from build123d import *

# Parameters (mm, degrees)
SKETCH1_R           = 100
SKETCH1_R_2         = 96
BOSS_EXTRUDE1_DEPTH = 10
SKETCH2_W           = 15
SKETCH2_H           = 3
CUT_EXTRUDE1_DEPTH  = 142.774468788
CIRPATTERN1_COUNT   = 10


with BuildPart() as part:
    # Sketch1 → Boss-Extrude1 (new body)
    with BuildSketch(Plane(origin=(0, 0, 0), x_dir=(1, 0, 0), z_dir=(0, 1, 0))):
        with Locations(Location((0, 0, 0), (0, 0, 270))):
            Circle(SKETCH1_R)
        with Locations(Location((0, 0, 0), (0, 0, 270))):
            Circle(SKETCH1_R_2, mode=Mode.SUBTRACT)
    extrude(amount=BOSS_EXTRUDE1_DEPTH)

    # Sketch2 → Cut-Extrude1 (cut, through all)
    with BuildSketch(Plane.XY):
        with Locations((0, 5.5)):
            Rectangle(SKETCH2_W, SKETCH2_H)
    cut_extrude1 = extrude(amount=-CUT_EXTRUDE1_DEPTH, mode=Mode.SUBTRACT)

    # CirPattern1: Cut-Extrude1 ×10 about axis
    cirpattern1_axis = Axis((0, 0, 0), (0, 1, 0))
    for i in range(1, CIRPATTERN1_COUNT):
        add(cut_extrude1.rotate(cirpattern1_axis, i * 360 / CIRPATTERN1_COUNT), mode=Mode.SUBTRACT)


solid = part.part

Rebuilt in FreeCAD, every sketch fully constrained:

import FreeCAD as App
import Part
import Sketcher


def add_polygon(sketch, points):
    """Adds a closed chain of lines whose ends are joined by coincident constraints."""
    first, n = sketch.GeometryCount, len(points)
    for a, b in zip(points, points[1:] + points[:1]):
        sketch.addGeometry(Part.LineSegment(App.Vector(*a, 0), App.Vector(*b, 0)), False)
    for i in range(n):
        sketch.addConstraint(Sketcher.Constraint("Coincident", first + i, 2, first + (i + 1) % n, 1))

doc = App.newDocument("Part")
body = doc.addObject("PartDesign::Body", "Body")

sketch1 = body.newObject("Sketcher::SketchObject", "Sketch")
sketch1.AttachmentSupport = (doc.getObject("XZ_Plane"), [""])
sketch1.MapMode = "FlatFace"
sketch1.addGeometry([
    Part.Circle(App.Vector(0, 0, 0), App.Vector(0, 0, 1), 100),
    Part.Circle(App.Vector(0, 0, 0), App.Vector(0, 0, 1), 96),
], False)
sketch1.addConstraint([
    Sketcher.Constraint("Coincident", 0, 3, -1, 1),
    Sketcher.Constraint("Coincident", 1, 3, -1, 1),
    Sketcher.Constraint("Diameter", 0, 200.0),
    Sketcher.Constraint("Diameter", 1, 192.0),
])
pad1 = body.newObject("PartDesign::Pad", "Pad")
pad1.Profile = sketch1
pad1.Length = 10
pad1.Reversed = True

sketch2 = body.newObject("Sketcher::SketchObject", "Sketch001")
sketch2.AttachmentSupport = (doc.getObject("XY_Plane"), [""])
sketch2.MapMode = "FlatFace"
add_polygon(sketch2, [(-7.5, 7), (-7.5, 4), (7.5, 4), (7.5, 7)])
sketch2.addConstraint([
    Sketcher.Constraint("Vertical", 0),
    Sketcher.Constraint("Horizontal", 1),
    Sketcher.Constraint("Vertical", 2),
    Sketcher.Constraint("Horizontal", 3),
    Sketcher.Constraint("DistanceX", 1, 1, 1, 2, 15.0),
    Sketcher.Constraint("DistanceY", 0, 2, 0, 1, 3.0),
    Sketcher.Constraint("DistanceY", -1, 1, 0, 2, 4.0),
    Sketcher.Constraint("DistanceX", 0, 2, -1, 1, 7.5),
])
pocket1 = body.newObject("PartDesign::Pocket", "Pocket")
pocket1.Profile = sketch2
pocket1.Type = "ThroughAll"
doc.recompute()

polarpattern = body.newObject("PartDesign::PolarPattern", "PolarPattern")
polarpattern.Originals = [pocket1]
polarpattern.Axis = (doc.getObject("Y_Axis"), [""])
polarpattern.Angle = 360
polarpattern.Occurrences = 10
body.Tip = polarpattern

doc.recompute()
